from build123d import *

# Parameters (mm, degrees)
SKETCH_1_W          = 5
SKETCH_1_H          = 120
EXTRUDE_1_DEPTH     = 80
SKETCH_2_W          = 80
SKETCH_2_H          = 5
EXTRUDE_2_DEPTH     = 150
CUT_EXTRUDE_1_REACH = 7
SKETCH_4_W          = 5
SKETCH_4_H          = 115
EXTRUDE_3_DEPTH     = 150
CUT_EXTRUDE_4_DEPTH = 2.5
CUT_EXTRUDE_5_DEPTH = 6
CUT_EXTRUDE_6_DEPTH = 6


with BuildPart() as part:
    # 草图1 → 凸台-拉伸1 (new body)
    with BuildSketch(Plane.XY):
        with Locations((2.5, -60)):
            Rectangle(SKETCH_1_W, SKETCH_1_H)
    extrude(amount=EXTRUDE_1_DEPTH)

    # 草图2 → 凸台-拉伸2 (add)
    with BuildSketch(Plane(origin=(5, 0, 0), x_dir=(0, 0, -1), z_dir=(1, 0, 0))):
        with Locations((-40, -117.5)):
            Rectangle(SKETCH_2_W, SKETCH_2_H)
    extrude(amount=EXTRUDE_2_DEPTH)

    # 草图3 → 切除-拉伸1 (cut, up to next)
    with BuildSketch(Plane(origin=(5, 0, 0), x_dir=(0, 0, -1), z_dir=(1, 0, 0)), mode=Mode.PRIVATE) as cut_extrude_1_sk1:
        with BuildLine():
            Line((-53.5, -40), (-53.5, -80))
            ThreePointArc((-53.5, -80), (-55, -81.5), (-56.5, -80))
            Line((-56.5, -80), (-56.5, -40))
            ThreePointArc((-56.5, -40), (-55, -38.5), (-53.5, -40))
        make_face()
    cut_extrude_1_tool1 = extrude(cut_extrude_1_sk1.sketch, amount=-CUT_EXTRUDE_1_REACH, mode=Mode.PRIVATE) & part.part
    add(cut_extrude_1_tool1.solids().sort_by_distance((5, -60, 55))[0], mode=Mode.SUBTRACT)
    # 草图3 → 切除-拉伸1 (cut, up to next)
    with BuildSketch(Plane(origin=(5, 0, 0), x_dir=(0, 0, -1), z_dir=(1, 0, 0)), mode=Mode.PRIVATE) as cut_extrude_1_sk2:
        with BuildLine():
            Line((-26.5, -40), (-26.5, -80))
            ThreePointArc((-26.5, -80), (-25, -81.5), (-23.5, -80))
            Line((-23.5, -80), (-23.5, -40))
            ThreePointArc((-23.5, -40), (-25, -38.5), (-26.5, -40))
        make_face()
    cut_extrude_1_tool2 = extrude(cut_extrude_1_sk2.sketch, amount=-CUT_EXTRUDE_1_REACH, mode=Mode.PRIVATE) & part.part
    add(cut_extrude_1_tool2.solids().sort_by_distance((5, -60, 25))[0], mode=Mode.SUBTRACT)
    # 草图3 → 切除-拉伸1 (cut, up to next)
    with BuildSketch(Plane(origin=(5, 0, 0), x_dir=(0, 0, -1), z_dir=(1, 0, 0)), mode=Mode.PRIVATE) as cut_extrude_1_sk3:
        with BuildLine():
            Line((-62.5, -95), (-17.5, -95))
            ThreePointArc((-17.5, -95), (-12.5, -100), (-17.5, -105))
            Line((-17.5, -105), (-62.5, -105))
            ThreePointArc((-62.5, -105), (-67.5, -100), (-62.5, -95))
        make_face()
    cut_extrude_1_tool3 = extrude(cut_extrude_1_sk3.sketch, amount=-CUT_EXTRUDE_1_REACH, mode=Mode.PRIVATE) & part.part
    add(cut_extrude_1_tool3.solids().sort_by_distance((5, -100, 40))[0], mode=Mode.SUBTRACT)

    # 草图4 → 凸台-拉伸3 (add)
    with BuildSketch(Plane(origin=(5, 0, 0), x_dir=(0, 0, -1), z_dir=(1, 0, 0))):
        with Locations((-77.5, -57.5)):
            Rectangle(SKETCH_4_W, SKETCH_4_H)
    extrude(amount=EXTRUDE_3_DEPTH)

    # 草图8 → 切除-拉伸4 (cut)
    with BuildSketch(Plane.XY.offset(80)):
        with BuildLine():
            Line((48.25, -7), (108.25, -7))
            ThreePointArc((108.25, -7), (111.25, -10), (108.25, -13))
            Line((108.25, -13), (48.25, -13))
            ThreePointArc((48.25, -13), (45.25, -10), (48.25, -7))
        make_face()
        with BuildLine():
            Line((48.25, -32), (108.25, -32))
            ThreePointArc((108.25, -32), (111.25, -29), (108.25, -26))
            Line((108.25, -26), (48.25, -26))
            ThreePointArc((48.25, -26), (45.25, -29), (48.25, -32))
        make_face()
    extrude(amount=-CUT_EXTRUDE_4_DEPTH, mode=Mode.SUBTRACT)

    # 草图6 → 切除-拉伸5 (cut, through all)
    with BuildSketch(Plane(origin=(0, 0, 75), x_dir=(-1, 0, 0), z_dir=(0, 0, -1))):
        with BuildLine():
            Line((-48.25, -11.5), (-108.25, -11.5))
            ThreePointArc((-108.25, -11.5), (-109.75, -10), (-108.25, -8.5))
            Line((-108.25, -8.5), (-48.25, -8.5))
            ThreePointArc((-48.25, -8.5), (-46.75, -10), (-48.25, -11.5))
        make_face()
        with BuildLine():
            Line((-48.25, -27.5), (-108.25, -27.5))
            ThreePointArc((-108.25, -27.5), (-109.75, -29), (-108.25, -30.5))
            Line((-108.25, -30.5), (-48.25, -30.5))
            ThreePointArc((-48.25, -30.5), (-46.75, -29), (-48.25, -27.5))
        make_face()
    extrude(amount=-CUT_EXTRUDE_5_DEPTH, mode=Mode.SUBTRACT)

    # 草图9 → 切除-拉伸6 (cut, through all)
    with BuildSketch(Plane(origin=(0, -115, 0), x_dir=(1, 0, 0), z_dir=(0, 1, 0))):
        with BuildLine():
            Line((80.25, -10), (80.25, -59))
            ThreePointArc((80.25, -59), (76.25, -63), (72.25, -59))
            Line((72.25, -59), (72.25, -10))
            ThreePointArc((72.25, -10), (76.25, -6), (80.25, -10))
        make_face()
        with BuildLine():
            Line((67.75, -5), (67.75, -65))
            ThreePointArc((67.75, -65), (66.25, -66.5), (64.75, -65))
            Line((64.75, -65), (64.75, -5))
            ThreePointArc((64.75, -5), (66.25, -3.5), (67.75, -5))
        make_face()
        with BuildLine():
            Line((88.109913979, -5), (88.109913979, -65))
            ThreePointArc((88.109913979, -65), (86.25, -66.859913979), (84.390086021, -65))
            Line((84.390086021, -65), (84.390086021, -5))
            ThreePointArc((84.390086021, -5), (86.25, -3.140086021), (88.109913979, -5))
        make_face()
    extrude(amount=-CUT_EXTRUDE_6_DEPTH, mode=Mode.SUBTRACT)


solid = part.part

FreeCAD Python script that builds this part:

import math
import FreeCAD as App
import Part
import Sketcher
from FreeCAD import Vector

doc = App.newDocument("Part")
body = doc.addObject("PartDesign::Body", "Body")

# Sketch on XY plane
sketch1 = body.newObject("Sketcher::SketchObject", "Sketch")
sketch1.AttachmentSupport = (doc.getObject("XY_Plane"), [""])
sketch1.MapMode = "FlatFace"
sketch1.addGeometry(Part.LineSegment(Vector(0, 0, 0), Vector(0, -120, 0)), False)
sketch1.addGeometry(Part.LineSegment(Vector(0, -120, 0), Vector(5, -120, 0)), False)
sketch1.addGeometry(Part.LineSegment(Vector(5, -120, 0), Vector(5, 0, 0)), False)
sketch1.addGeometry(Part.LineSegment(Vector(5, 0, 0), Vector(0, 0, 0)), False)
sketch1.addConstraint(Sketcher.Constraint("Coincident", 0, 2, 1, 1))
sketch1.addConstraint(Sketcher.Constraint("Coincident", 1, 2, 2, 1))
sketch1.addConstraint(Sketcher.Constraint("Coincident", 2, 2, 3, 1))
sketch1.addConstraint(Sketcher.Constraint("Coincident", 3, 2, 0, 1))
sketch1.addConstraint(Sketcher.Constraint("Vertical", 0))
sketch1.addConstraint(Sketcher.Constraint("Horizontal", 1))
sketch1.addConstraint(Sketcher.Constraint("Vertical", 2))
sketch1.addConstraint(Sketcher.Constraint("Horizontal", 3))
sketch1.addConstraint(Sketcher.Constraint("Coincident", 3, 2, -1, 1))
sketch1.addConstraint(Sketcher.Constraint("DistanceX", 1, 1, 1, 2, 5.0))
sketch1.addConstraint(Sketcher.Constraint("DistanceY", 0, 2, 0, 1, 120.0))
pad1 = body.newObject("PartDesign::Pad", "Pad")
pad1.Profile = sketch1
pad1.Length = 80

# Sketch on YZ plane
sketch2 = body.newObject("Sketcher::SketchObject", "Sketch001")
sketch2.AttachmentSupport = (doc.getObject("YZ_Plane"), [""])
sketch2.MapMode = "FlatFace"
sketch2.AttachmentOffset = App.Placement(Vector(0, 0, 5), App.Rotation())
sketch2.addGeometry(Part.LineSegment(Vector(-115, 80, 0), Vector(-120, 80, 0)), False)
sketch2.addGeometry(Part.LineSegment(Vector(-120, 80, 0), Vector(-120, 0, 0)), False)
sketch2.addGeometry(Part.LineSegment(Vector(-120, 0, 0), Vector(-115, 0, 0)), False)
sketch2.addGeometry(Part.LineSegment(Vector(-115, 0, 0), Vector(-115, 80, 0)), False)
sketch2.addConstraint(Sketcher.Constraint("Coincident", 0, 2, 1, 1))
sketch2.addConstraint(Sketcher.Constraint("Coincident", 1, 2, 2, 1))
sketch2.addConstraint(Sketcher.Constraint("Coincident", 2, 2, 3, 1))
sketch2.addConstraint(Sketcher.Constraint("Coincident", 3, 2, 0, 1))
sketch2.addConstraint(Sketcher.Constraint("Horizontal", 0))
sketch2.addConstraint(Sketcher.Constraint("Vertical", 1))
sketch2.addConstraint(Sketcher.Constraint("Horizontal", 2))
sketch2.addConstraint(Sketcher.Constraint("Vertical", 3))
sketch2.addConstraint(Sketcher.Constraint("PointOnObject", 1, 2, -1))
sketch2.addConstraint(Sketcher.Constraint("DistanceX", 0, 2, 0, 1, 5.0))
sketch2.addConstraint(Sketcher.Constraint("DistanceY", 1, 2, 1, 1, 80.0))
sketch2.addConstraint(Sketcher.Constraint("DistanceX", 0, 2, -1, 1, 120.0))
pad2 = body.newObject("PartDesign::Pad", "Pad001")
pad2.Profile = sketch2
pad2.Length = 150

# Sketch on YZ plane
sketch3 = body.newObject("Sketcher::SketchObject", "Sketch002")
sketch3.AttachmentSupport = (doc.getObject("YZ_Plane"), [""])
sketch3.MapMode = "FlatFace"
sketch3.AttachmentOffset = App.Placement(Vector(0, 0, 5), App.Rotation())
sketch3.addGeometry(Part.LineSegment(Vector(-80, 53.5, 0), Vector(-40, 53.5, 0)), False)
sketch3.addGeometry(Part.ArcOfCircle(Part.Circle(Vector(-40, 55, 0), Vector(0, 0, 1), 1.5), math.radians(-90), math.radians(90)), False)
sketch3.addGeometry(Part.LineSegment(Vector(-40, 56.5, 0), Vector(-80, 56.5, 0)), False)
sketch3.addGeometry(Part.ArcOfCircle(Part.Circle(Vector(-80, 55, 0), Vector(0, 0, 1), 1.5), math.radians(90), math.radians(270)), False)
sketch3.addConstraint(Sketcher.Constraint("Tangent", 0, 2, 1, 1))
sketch3.addConstraint(Sketcher.Constraint("Tangent", 1, 2, 2, 1))
sketch3.addConstraint(Sketcher.Constraint("Tangent", 2, 2, 3, 1))
sketch3.addConstraint(Sketcher.Constraint("Tangent", 3, 2, 0, 1))
sketch3.addConstraint(Sketcher.Constraint("Horizontal", 0))
sketch3.addConstraint(Sketcher.Constraint("Horizontal", 2))
sketch3.addConstraint(Sketcher.Constraint("Radius", 1, 1.5))
sketch3.addConstraint(Sketcher.Constraint("DistanceX", 0, 1, 0, 2, 40.0))
sketch3.addConstraint(Sketcher.Constraint("DistanceX", 1, 3, -1, 1, 40.0))
sketch3.addConstraint(Sketcher.Constraint("DistanceY", -1, 1, 1, 3, 55.0))
pocket1 = body.newObject("PartDesign::Pocket", "Pocket")
pocket1.Profile = sketch3
pocket1.Type = "UpToFirst"

# Sketch on YZ plane
sketch4 = body.newObject("Sketcher::SketchObject", "Sketch003")
sketch4.AttachmentSupport = (doc.getObject("YZ_Plane"), [""])
sketch4.MapMode = "FlatFace"
sketch4.AttachmentOffset = App.Placement(Vector(0, 0, 5), App.Rotation())
sketch4.addGeometry(Part.LineSegment(Vector(-40, 26.5, 0), Vector(-80, 26.5, 0)), False)
sketch4.addGeometry(Part.ArcOfCircle(Part.Circle(Vector(-80, 25, 0), Vector(0, 0, 1), 1.5), math.radians(90), math.radians(270)), False)
sketch4.addGeometry(Part.LineSegment(Vector(-80, 23.5, 0), Vector(-40, 23.5, 0)), False)
sketch4.addGeometry(Part.ArcOfCircle(Part.Circle(Vector(-40, 25, 0), Vector(0, 0, 1), 1.5), math.radians(-90), math.radians(90)), False)
sketch4.addConstraint(Sketcher.Constraint("Tangent", 0, 2, 1, 1))
sketch4.addConstraint(Sketcher.Constraint("Tangent", 1, 2, 2, 1))
sketch4.addConstraint(Sketcher.Constraint("Tangent", 2, 2, 3, 1))
sketch4.addConstraint(Sketcher.Constraint("Tangent", 3, 2, 0, 1))
sketch4.addConstraint(Sketcher.Constraint("Horizontal", 0))
sketch4.addConstraint(Sketcher.Constraint("Horizontal", 2))
sketch4.addConstraint(Sketcher.Constraint("Radius", 1, 1.5))
sketch4.addConstraint(Sketcher.Constraint("DistanceX", 0, 2, 0, 1, 40.0))
sketch4.addConstraint(Sketcher.Constraint("DistanceX", 1, 3, -1, 1, 80.0))
sketch4.addConstraint(Sketcher.Constraint("DistanceY", -1, 1, 1, 3, 25.0))
pocket2 = body.newObject("PartDesign::Pocket", "Pocket001")
pocket2.Profile = sketch4
pocket2.Type = "UpToFirst"

# Sketch on YZ plane
sketch5 = body.newObject("Sketcher::SketchObject", "Sketch004")
sketch5.AttachmentSupport = (doc.getObject("YZ_Plane"), [""])
sketch5.MapMode = "FlatFace"
sketch5.AttachmentOffset = App.Placement(Vector(0, 0, 5), App.Rotation())
sketch5.addGeometry(Part.LineSegment(Vector(-95, 18, 0), Vector(-95, 62, 0)), False)
sketch5.addGeometry(Part.ArcOfCircle(Part.Circle(Vector(-100, 62, 0), Vector(0, 0, 1), 5), math.radians(0), math.radians(180)), False)
sketch5.addGeometry(Part.LineSegment(Vector(-105, 62, 0), Vector(-105, 18, 0)), False)
sketch5.addGeometry(Part.ArcOfCircle(Part.Circle(Vector(-100, 18, 0), Vector(0, 0, 1), 5), math.radians(180), math.radians(360)), False)
sketch5.addConstraint(Sketcher.Constraint("Tangent", 0, 2, 1, 1))
sketch5.addConstraint(Sketcher.Constraint("Tangent", 1, 2, 2, 1))
sketch5.addConstraint(Sketcher.Constraint("Tangent", 2, 2, 3, 1))
sketch5.addConstraint(Sketcher.Constraint("Tangent", 3, 2, 0, 1))
sketch5.addConstraint(Sketcher.Constraint("Vertical", 0))
sketch5.addConstraint(Sketcher.Constraint("Vertical", 2))
sketch5.addConstraint(Sketcher.Constraint("Radius", 1, 5.0))
sketch5.addConstraint(Sketcher.Constraint("DistanceY", 0, 1, 0, 2, 45.0))
sketch5.addConstraint(Sketcher.Constraint("DistanceX", 1, 3, -1, 1, 100.0))
sketch5.addConstraint(Sketcher.Constraint("DistanceY", -1, 1, 1, 3, 62.5))
pocket3 = body.newObject("PartDesign::Pocket", "Pocket002")
pocket3.Profile = sketch5
pocket3.Type = "UpToFirst"

# Sketch on YZ plane
sketch6 = body.newObject("Sketcher::SketchObject", "Sketch005")
sketch6.AttachmentSupport = (doc.getObject("YZ_Plane"), [""])
sketch6.MapMode = "FlatFace"
sketch6.AttachmentOffset = App.Placement(Vector(0, 0, 5), App.Rotation())
sketch6.addGeometry(Part.LineSegment(Vector(0, 80, 0), Vector(-115, 80, 0)), False)
sketch6.addGeometry(Part.LineSegment(Vector(-115, 80, 0), Vector(-115, 75, 0)), False)
sketch6.addGeometry(Part.LineSegment(Vector(-115, 75, 0), Vector(0, 75, 0)), False)
sketch6.addGeometry(Part.LineSegment(Vector(0, 75, 0), Vector(0, 80, 0)), False)
sketch6.addConstraint(Sketcher.Constraint("Coincident", 0, 2, 1, 1))
sketch6.addConstraint(Sketcher.Constraint("Coincident", 1, 2, 2, 1))
sketch6.addConstraint(Sketcher.Constraint("Coincident", 2, 2, 3, 1))
sketch6.addConstraint(Sketcher.Constraint("Coincident", 3, 2, 0, 1))
sketch6.addConstraint(Sketcher.Constraint("Horizontal", 0))
sketch6.addConstraint(Sketcher.Constraint("Vertical", 1))
sketch6.addConstraint(Sketcher.Constraint("Horizontal", 2))
sketch6.addConstraint(Sketcher.Constraint("Vertical", 3))
sketch6.addConstraint(Sketcher.Constraint("PointOnObject", 2, 2, -2))
sketch6.addConstraint(Sketcher.Constraint("DistanceX", 0, 2, 0, 1, 115.0))
sketch6.addConstraint(Sketcher.Constraint("DistanceY", 1, 2, 1, 1, 5.0))
sketch6.addConstraint(Sketcher.Constraint("DistanceY", -1, 1, 0, 2, 80.0))
pad3 = body.newObject("PartDesign::Pad", "Pad002")
pad3.Profile = sketch6
pad3.Length = 150

# Sketch on XY plane
sketch7 = body.newObject("Sketcher::SketchObject", "Sketch006")
sketch7.AttachmentSupport = (doc.getObject("XY_Plane"), [""])
sketch7.MapMode = "FlatFace"
sketch7.AttachmentOffset = App.Placement(Vector(0, 0, 80), App.Rotation())
sketch7.addGeometry(Part.LineSegment(Vector(108.2, -7, 0), Vector(48.2, -7, 0)), False)
sketch7.addGeometry(Part.ArcOfCircle(Part.Circle(Vector(48.2, -10, 0), Vector(0, 0, 1), 3), math.radians(90), math.radians(270)), False)
sketch7.addGeometry(Part.LineSegment(Vector(48.2, -13, 0), Vector(108.2, -13, 0)), False)
sketch7.addGeometry(Part.ArcOfCircle(Part.Circle(Vector(108.2, -10, 0), Vector(0, 0, 1), 3), math.radians(-90), math.radians(90)), False)
sketch7.addGeometry(Part.LineSegment(Vector(48.2, -32, 0), Vector(108.2, -32, 0)), False)
sketch7.addGeometry(Part.ArcOfCircle(Part.Circle(Vector(108.2, -29, 0), Vector(0, 0, 1), 3), math.radians(-90), math.radians(90)), False)
sketch7.addGeometry(Part.LineSegment(Vector(108.2, -26, 0), Vector(48.2, -26, 0)), False)
sketch7.addGeometry(Part.ArcOfCircle(Part.Circle(Vector(48.2, -29, 0), Vector(0, 0, 1), 3), math.radians(90), math.radians(270)), False)
sketch7.addConstraint(Sketcher.Constraint("Tangent", 0, 2, 1, 1))
sketch7.addConstraint(Sketcher.Constraint("Tangent", 1, 2, 2, 1))
sketch7.addConstraint(Sketcher.Constraint("Tangent", 2, 2, 3, 1))
sketch7.addConstraint(Sketcher.Constraint("Tangent", 3, 2, 0, 1))
sketch7.addConstraint(Sketcher.Constraint("Tangent", 4, 2, 5, 1))
sketch7.addConstraint(Sketcher.Constraint("Tangent", 5, 2, 6, 1))
sketch7.addConstraint(Sketcher.Constraint("Tangent", 6, 2, 7, 1))
sketch7.addConstraint(Sketcher.Constraint("Tangent", 7, 2, 4, 1))
sketch7.addConstraint(Sketcher.Constraint("Horizontal", 0))
sketch7.addConstraint(Sketcher.Constraint("Horizontal", 2))
sketch7.addConstraint(Sketcher.Constraint("Horizontal", 4))
sketch7.addConstraint(Sketcher.Constraint("Horizontal", 6))
sketch7.addConstraint(Sketcher.Constraint("Equal", 3, 5))
sketch7.addConstraint(Sketcher.Constraint("Vertical", 3, 3, 5, 3))
sketch7.addConstraint(Sketcher.Constraint("Vertical", 1, 3, 7, 3))
sketch7.addConstraint(Sketcher.Constraint("Radius", 1, 3.0))
sketch7.addConstraint(Sketcher.Constraint("DistanceX", 0, 2, 0, 1, 60.0))
sketch7.addConstraint(Sketcher.Constraint("DistanceY", 1, 3, -1, 1, 10.0))
sketch7.addConstraint(Sketcher.Constraint("DistanceY", 5, 3, -1, 1, 29.0))
sketch7.addConstraint(Sketcher.Constraint("DistanceX", -1, 1, 1, 3, 48.25))
pocket4 = body.newObject("PartDesign::Pocket", "Pocket003")
pocket4.Profile = sketch7
pocket4.Length = 2.5

# Sketch on XY plane
sketch8 = body.newObject("Sketcher::SketchObject", "Sketch007")
sketch8.AttachmentSupport = (doc.getObject("XY_Plane"), [""])
sketch8.MapMode = "FlatFace"
sketch8.AttachmentOffset = App.Placement(Vector(0, 0, 75), App.Rotation())
sketch8.addGeometry(Part.LineSegment(Vector(108.2, -11.5, 0), Vector(48.2, -11.5, 0)), False)
sketch8.addGeometry(Part.ArcOfCircle(Part.Circle(Vector(48.2, -10, 0), Vector(0, 0, 1), 1.5), math.radians(90), math.radians(270)), False)
sketch8.addGeometry(Part.LineSegment(Vector(48.2, -8.5, 0), Vector(108.2, -8.5, 0)), False)
sketch8.addGeometry(Part.ArcOfCircle(Part.Circle(Vector(108.2, -10, 0), Vector(0, 0, 1), 1.5), math.radians(-90), math.radians(90)), False)
sketch8.addGeometry(Part.LineSegment(Vector(48.2, -27.5, 0), Vector(108.2, -27.5, 0)), False)
sketch8.addGeometry(Part.ArcOfCircle(Part.Circle(Vector(108.2, -29, 0), Vector(0, 0, 1), 1.5), math.radians(-90), math.radians(90)), False)
sketch8.addGeometry(Part.LineSegment(Vector(108.2, -30.5, 0), Vector(48.2, -30.5, 0)), False)
sketch8.addGeometry(Part.ArcOfCircle(Part.Circle(Vector(48.2, -29, 0), Vector(0, 0, 1), 1.5), math.radians(90), math.radians(270)), False)
sketch8.addConstraint(Sketcher.Constraint("Tangent", 0, 2, 1, 2))
sketch8.addConstraint(Sketcher.Constraint("Tangent", 1, 1, 2, 1))
sketch8.addConstraint(Sketcher.Constraint("Tangent", 2, 2, 3, 2))
sketch8.addConstraint(Sketcher.Constraint("Tangent", 3, 1, 0, 1))
sketch8.addConstraint(Sketcher.Constraint("Tangent", 4, 2, 5, 2))
sketch8.addConstraint(Sketcher.Constraint("Tangent", 5, 1, 6, 1))
sketch8.addConstraint(Sketcher.Constraint("Tangent", 6, 2, 7, 2))
sketch8.addConstraint(Sketcher.Constraint("Tangent", 7, 1, 4, 1))
sketch8.addConstraint(Sketcher.Constraint("Horizontal", 0))
sketch8.addConstraint(Sketcher.Constraint("Horizontal", 2))
sketch8.addConstraint(Sketcher.Constraint("Horizontal", 4))
sketch8.addConstraint(Sketcher.Constraint("Horizontal", 6))
sketch8.addConstraint(Sketcher.Constraint("Equal", 3, 5))
sketch8.addConstraint(Sketcher.Constraint("Vertical", 3, 3, 5, 3))
sketch8.addConstraint(Sketcher.Constraint("Vertical", 1, 3, 7, 3))
sketch8.addConstraint(Sketcher.Constraint("Radius", 1, 1.5))
sketch8.addConstraint(Sketcher.Constraint("DistanceX", 0, 2, 0, 1, 60.0))
sketch8.addConstraint(Sketcher.Constraint("DistanceY", 1, 3, -1, 1, 10.0))
sketch8.addConstraint(Sketcher.Constraint("DistanceY", 5, 3, -1, 1, 29.0))
sketch8.addConstraint(Sketcher.Constraint("DistanceX", -1, 1, 1, 3, 48.25))
pocket5 = body.newObject("PartDesign::Pocket", "Pocket004")
pocket5.Profile = sketch8
pocket5.Type = "ThroughAll"
pocket5.Reversed = True

# Sketch on XZ plane
sketch9 = body.newObject("Sketcher::SketchObject", "Sketch008")
sketch9.AttachmentSupport = (doc.getObject("XZ_Plane"), [""])
sketch9.MapMode = "FlatFace"
sketch9.AttachmentOffset = App.Placement(Vector(0, 0, 115), App.Rotation())
sketch9.addGeometry(Part.LineSegment(Vector(80.2, 59, 0), Vector(80.2, 10, 0)), False)
sketch9.addGeometry(Part.ArcOfCircle(Part.Circle(Vector(76.2, 10, 0), Vector(0, 0, 1), 4), math.radians(180), math.radians(360)), False)
sketch9.addGeometry(Part.LineSegment(Vector(72.2, 10, 0), Vector(72.2, 59, 0)), False)
sketch9.addGeometry(Part.ArcOfCircle(Part.Circle(Vector(76.2, 59, 0), Vector(0, 0, 1), 4), math.radians(0), math.radians(180)), False)
sketch9.addGeometry(Part.LineSegment(Vector(67.8, 65, 0), Vector(67.8, 5, 0)), False)
sketch9.addGeometry(Part.ArcOfCircle(Part.Circle(Vector(66.2, 5, 0), Vector(0, 0, 1), 1.5), math.radians(180), math.radians(360)), False)
sketch9.addGeometry(Part.LineSegment(Vector(64.8, 5, 0), Vector(64.8, 65, 0)), False)
sketch9.addGeometry(Part.ArcOfCircle(Part.Circle(Vector(66.2, 65, 0), Vector(0, 0, 1), 1.5), math.radians(0), math.radians(180)), False)
sketch9.addGeometry(Part.LineSegment(Vector(88.1, 65, 0), Vector(88.1, 5, 0)), False)
sketch9.addGeometry(Part.ArcOfCircle(Part.Circle(Vector(86.2, 5, 0), Vector(0, 0, 1), 1.9), math.radians(180), math.radians(360)), False)
sketch9.addGeometry(Part.LineSegment(Vector(84.4, 5, 0), Vector(84.4, 65, 0)), False)
sketch9.addGeometry(Part.ArcOfCircle(Part.Circle(Vector(86.2, 65, 0), Vector(0, 0, 1), 1.9), math.radians(0), math.radians(180)), False)
sketch9.addConstraint(Sketcher.Constraint("Tangent", 0, 2, 1, 2))
sketch9.addConstraint(Sketcher.Constraint("Tangent", 1, 1, 2, 1))
sketch9.addConstraint(Sketcher.Constraint("Tangent", 2, 2, 3, 2))
sketch9.addConstraint(Sketcher.Constraint("Tangent", 3, 1, 0, 1))
sketch9.addConstraint(Sketcher.Constraint("Tangent", 4, 2, 5, 2))
sketch9.addConstraint(Sketcher.Constraint("Tangent", 5, 1, 6, 1))
sketch9.addConstraint(Sketcher.Constraint("Tangent", 6, 2, 7, 2))
sketch9.addConstraint(Sketcher.Constraint("Tangent", 7, 1, 4, 1))
sketch9.addConstraint(Sketcher.Constraint("Tangent", 8, 2, 9, 2))
sketch9.addConstraint(Sketcher.Constraint("Tangent", 9, 1, 10, 1))
sketch9.addConstraint(Sketcher.Constraint("Tangent", 10, 2, 11, 2))
sketch9.addConstraint(Sketcher.Constraint("Tangent", 11, 1, 8, 1))
sketch9.addConstraint(Sketcher.Constraint("Vertical", 0))
sketch9.addConstraint(Sketcher.Constraint("Vertical", 2))
sketch9.addConstraint(Sketcher.Constraint("Vertical", 4))
sketch9.addConstraint(Sketcher.Constraint("Vertical", 6))
sketch9.addConstraint(Sketcher.Constraint("Vertical", 8))
sketch9.addConstraint(Sketcher.Constraint("Vertical", 10))
sketch9.addConstraint(Sketcher.Constraint("Horizontal", 5, 3, 9, 3))
sketch9.addConstraint(Sketcher.Constraint("Horizontal", 7, 3, 11, 3))
sketch9.addConstraint(Sketcher.Constraint("Radius", 1, 4.0))
sketch9.addConstraint(Sketcher.Constraint("Radius", 5, 1.5))
sketch9.addConstraint(Sketcher.Constraint("DistanceY", 0, 2, 0, 1, 49.0))
sketch9.addConstraint(Sketcher.Constraint("DistanceY", 4, 2, 4, 1, 60.0))
sketch9.addConstraint(Sketcher.Constraint("DistanceY", -1, 1, 1, 3, 10.0))
sketch9.addConstraint(Sketcher.Constraint("DistanceY", -1, 1, 5, 3, 5.0))
sketch9.addConstraint(Sketcher.Constraint("DistanceX", 5, 3, 1, 3, 10.0))
sketch9.addConstraint(Sketcher.Constraint("DistanceX", 1, 3, 9, 3, 10.0))
sketch9.addConstraint(Sketcher.Constraint("DistanceX", -1, 1, 1, 3, 76.25))
sketch9.addConstraint(Sketcher.Constraint("Radius", 9, 1.859914))
pocket6 = body.newObject("PartDesign::Pocket", "Pocket005")
pocket6.Profile = sketch9
pocket6.Type = "ThroughAll"
pocket6.Reversed = True

doc.recompute()
